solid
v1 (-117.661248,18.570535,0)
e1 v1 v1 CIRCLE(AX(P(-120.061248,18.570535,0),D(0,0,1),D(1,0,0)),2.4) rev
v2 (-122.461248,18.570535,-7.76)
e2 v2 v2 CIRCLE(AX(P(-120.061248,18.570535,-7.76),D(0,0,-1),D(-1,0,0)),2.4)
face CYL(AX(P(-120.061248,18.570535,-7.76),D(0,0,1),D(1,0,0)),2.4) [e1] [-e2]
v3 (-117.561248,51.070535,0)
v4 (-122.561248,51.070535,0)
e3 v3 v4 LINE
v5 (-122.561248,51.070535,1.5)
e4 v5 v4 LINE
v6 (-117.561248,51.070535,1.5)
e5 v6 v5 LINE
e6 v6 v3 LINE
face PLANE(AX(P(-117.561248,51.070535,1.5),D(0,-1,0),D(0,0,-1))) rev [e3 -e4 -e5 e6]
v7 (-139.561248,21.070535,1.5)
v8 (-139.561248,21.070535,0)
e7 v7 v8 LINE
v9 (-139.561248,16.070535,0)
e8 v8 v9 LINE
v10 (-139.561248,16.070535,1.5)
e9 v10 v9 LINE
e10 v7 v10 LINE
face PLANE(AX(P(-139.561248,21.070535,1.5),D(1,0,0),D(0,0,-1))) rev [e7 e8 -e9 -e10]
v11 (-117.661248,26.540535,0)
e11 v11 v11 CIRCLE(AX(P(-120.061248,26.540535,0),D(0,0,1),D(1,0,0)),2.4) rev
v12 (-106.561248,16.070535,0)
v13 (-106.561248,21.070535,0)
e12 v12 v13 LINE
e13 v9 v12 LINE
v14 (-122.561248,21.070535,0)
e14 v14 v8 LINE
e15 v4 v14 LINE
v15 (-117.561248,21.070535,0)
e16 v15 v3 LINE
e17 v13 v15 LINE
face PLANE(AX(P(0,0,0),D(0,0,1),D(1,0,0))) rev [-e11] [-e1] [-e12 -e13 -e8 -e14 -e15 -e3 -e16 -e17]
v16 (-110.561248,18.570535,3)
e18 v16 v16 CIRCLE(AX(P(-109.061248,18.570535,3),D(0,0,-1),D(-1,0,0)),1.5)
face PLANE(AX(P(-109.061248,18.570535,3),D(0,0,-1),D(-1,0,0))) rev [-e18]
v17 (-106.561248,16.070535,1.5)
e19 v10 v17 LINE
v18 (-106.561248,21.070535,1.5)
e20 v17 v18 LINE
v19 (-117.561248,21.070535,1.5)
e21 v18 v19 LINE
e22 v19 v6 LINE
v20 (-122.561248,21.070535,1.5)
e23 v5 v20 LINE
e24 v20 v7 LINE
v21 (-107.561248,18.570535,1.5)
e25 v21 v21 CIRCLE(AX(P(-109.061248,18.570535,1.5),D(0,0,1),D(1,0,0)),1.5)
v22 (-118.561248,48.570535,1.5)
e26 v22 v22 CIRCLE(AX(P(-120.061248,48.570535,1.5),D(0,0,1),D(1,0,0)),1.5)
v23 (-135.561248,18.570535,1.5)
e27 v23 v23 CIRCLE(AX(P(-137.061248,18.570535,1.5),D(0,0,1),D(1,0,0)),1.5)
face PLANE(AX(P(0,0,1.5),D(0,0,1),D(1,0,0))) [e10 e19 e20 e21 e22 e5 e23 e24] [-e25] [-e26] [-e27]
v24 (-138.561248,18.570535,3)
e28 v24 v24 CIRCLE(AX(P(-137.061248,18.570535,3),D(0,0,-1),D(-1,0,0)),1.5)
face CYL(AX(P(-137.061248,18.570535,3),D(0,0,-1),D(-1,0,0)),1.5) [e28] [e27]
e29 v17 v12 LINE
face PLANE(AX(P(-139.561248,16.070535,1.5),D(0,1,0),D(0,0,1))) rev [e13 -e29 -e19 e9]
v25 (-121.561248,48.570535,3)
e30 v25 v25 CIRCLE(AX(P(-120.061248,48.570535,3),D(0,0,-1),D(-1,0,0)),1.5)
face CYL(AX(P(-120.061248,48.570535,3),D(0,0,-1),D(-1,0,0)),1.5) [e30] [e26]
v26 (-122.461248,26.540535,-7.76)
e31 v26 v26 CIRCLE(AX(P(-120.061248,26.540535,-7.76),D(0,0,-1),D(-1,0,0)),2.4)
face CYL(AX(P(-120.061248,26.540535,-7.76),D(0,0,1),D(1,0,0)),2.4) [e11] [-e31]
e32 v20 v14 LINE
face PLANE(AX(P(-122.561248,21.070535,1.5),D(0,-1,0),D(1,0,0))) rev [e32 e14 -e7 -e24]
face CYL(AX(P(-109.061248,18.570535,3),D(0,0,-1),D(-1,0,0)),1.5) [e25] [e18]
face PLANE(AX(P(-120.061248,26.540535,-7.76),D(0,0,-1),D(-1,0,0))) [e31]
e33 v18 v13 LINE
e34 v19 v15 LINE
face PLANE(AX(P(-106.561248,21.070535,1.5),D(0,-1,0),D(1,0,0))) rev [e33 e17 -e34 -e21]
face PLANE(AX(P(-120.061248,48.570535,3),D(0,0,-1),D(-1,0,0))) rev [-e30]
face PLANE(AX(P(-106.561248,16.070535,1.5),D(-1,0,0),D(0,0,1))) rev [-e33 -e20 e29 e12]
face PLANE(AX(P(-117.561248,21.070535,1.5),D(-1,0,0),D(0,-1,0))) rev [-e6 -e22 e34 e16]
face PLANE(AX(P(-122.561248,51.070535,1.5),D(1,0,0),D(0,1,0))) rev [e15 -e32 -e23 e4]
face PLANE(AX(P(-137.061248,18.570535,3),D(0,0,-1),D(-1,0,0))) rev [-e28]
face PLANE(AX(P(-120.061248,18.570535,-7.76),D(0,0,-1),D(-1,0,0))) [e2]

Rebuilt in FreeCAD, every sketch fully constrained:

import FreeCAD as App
import Part
import Sketcher

V = App.Vector
Q = App.Units.Quantity


def add_polygon(sketch, points):
    """Adds a closed chain of lines whose ends are joined by coincident constraints."""
    first, n = sketch.GeometryCount, len(points)
    for a, b in zip(points, points[1:] + points[:1]):
        sketch.addGeometry(Part.LineSegment(App.Vector(*a, 0), App.Vector(*b, 0)), False)
    for i in range(n):
        sketch.addConstraint(Sketcher.Constraint("Coincident", first + i, 2, first + (i + 1) % n, 1))

doc = App.newDocument("Part")
body = doc.addObject("PartDesign::Body", "Body")

# Sketch on XY plane
sketch1 = body.newObject("Sketcher::SketchObject", "Sketch")
sketch1.AttachmentSupport = (doc.getObject("XY_Plane"), [""])
sketch1.MapMode = "FlatFace"
add_polygon(sketch1, [(-139.561248, 16.070535), (-106.561248, 16.070535), (-106.561248, 21.070535), (-117.561248, 21.070535), (-117.561248, 51.070535), (-122.561248, 51.070535), (-122.561248, 21.070535), (-139.561248, 21.070535)])  # lines 0-7
sketch1.addConstraint(Sketcher.Constraint("Horizontal", 0))
sketch1.addConstraint(Sketcher.Constraint("Vertical", 1))
sketch1.addConstraint(Sketcher.Constraint("Horizontal", 2))
sketch1.addConstraint(Sketcher.Constraint("Vertical", 3))
sketch1.addConstraint(Sketcher.Constraint("Horizontal", 4))
sketch1.addConstraint(Sketcher.Constraint("Vertical", 5))
sketch1.addConstraint(Sketcher.Constraint("Horizontal", 6))
sketch1.addConstraint(Sketcher.Constraint("Vertical", 7))
sketch1.addConstraint(Sketcher.Constraint("Horizontal", 2, 2, 5, 2))
sketch1.addConstraint(Sketcher.Constraint("Equal", 4, 1))
sketch1.addConstraint(Sketcher.Constraint("DistanceX", 0, 1, 0, 2, Q("33 mm")))
sketch1.addConstraint(Sketcher.Constraint("DistanceX", 2, 2, 2, 1, Q("11 mm")))
sketch1.addConstraint(Sketcher.Constraint("DistanceX", 4, 2, 4, 1, Q("5 mm")))
sketch1.addConstraint(Sketcher.Constraint("DistanceY", 3, 1, 3, 2, Q("30 mm")))
sketch1.addConstraint(Sketcher.Constraint("DistanceX", 0, 2, -1, 1, Q("106.561248 mm")))
sketch1.addConstraint(Sketcher.Constraint("DistanceY", -1, 1, 0, 2, Q("16.070535 mm")))
pad1 = body.newObject("PartDesign::Pad", "Pad")
pad1.Profile = sketch1
pad1.Length = 1.5

# Sketch on XY plane
sketch2 = body.newObject("Sketcher::SketchObject", "Sketch001")
sketch2.AttachmentSupport = (doc.getObject("XY_Plane"), [""])
sketch2.MapMode = "FlatFace"
sketch2.addGeometry(Part.Circle(V(-137.061248, 18.570535, 0), V(0, 0, 1), 1.5), False)
sketch2.addGeometry(Part.Circle(V(-109.061248, 18.570535, 0), V(0, 0, 1), 1.5), False)
sketch2.addGeometry(Part.Circle(V(-120.061248, 48.570535, 0), V(0, 0, 1), 1.5), False)
sketch2.addConstraint(Sketcher.Constraint("Equal", 0, 1))
sketch2.addConstraint(Sketcher.Constraint("Equal", 1, 2))
sketch2.addConstraint(Sketcher.Constraint("Horizontal", 0, 3, 1, 3))
sketch2.addConstraint(Sketcher.Constraint("Diameter", 0, Q("3 mm")))
sketch2.addConstraint(Sketcher.Constraint("DistanceX", 0, 3, 1, 3, Q("28 mm")))
sketch2.addConstraint(Sketcher.Constraint("DistanceX", 2, 3, 1, 3, Q("11 mm")))
sketch2.addConstraint(Sketcher.Constraint("DistanceY", 1, 3, 2, 3, Q("30 mm")))
sketch2.addConstraint(Sketcher.Constraint("DistanceX", 0, 3, -1, 1, Q("137.061248 mm")))
sketch2.addConstraint(Sketcher.Constraint("DistanceY", -1, 1, 0, 3, Q("18.570535 mm")))
pad2 = body.newObject("PartDesign::Pad", "Pad001")
pad2.Profile = sketch2
pad2.Length = 3

# Sketch on XY plane
sketch3 = body.newObject("Sketcher::SketchObject", "Sketch002")
sketch3.AttachmentSupport = (doc.getObject("XY_Plane"), [""])
sketch3.MapMode = "FlatFace"
sketch3.addGeometry(Part.Circle(V(-120.061248, 18.570535, 0), V(0, 0, 1), 2.4), False)
sketch3.addGeometry(Part.Circle(V(-120.061248, 26.540535, 0), V(0, 0, 1), 2.4), False)
sketch3.addConstraint(Sketcher.Constraint("Equal", 0, 1))
sketch3.addConstraint(Sketcher.Constraint("Vertical", 0, 3, 1, 3))
sketch3.addConstraint(Sketcher.Constraint("Diameter", 0, Q("4.8 mm")))
sketch3.addConstraint(Sketcher.Constraint("DistanceY", 0, 3, 1, 3, Q("7.97 mm")))
sketch3.addConstraint(Sketcher.Constraint("DistanceX", 0, 3, -1, 1, Q("120.061248 mm")))
sketch3.addConstraint(Sketcher.Constraint("DistanceY", -1, 1, 0, 3, Q("18.570535 mm")))
pad3 = body.newObject("PartDesign::Pad", "Pad002")
pad3.Profile = sketch3
pad3.Length = 7.76
pad3.Reversed = True

doc.recompute()
